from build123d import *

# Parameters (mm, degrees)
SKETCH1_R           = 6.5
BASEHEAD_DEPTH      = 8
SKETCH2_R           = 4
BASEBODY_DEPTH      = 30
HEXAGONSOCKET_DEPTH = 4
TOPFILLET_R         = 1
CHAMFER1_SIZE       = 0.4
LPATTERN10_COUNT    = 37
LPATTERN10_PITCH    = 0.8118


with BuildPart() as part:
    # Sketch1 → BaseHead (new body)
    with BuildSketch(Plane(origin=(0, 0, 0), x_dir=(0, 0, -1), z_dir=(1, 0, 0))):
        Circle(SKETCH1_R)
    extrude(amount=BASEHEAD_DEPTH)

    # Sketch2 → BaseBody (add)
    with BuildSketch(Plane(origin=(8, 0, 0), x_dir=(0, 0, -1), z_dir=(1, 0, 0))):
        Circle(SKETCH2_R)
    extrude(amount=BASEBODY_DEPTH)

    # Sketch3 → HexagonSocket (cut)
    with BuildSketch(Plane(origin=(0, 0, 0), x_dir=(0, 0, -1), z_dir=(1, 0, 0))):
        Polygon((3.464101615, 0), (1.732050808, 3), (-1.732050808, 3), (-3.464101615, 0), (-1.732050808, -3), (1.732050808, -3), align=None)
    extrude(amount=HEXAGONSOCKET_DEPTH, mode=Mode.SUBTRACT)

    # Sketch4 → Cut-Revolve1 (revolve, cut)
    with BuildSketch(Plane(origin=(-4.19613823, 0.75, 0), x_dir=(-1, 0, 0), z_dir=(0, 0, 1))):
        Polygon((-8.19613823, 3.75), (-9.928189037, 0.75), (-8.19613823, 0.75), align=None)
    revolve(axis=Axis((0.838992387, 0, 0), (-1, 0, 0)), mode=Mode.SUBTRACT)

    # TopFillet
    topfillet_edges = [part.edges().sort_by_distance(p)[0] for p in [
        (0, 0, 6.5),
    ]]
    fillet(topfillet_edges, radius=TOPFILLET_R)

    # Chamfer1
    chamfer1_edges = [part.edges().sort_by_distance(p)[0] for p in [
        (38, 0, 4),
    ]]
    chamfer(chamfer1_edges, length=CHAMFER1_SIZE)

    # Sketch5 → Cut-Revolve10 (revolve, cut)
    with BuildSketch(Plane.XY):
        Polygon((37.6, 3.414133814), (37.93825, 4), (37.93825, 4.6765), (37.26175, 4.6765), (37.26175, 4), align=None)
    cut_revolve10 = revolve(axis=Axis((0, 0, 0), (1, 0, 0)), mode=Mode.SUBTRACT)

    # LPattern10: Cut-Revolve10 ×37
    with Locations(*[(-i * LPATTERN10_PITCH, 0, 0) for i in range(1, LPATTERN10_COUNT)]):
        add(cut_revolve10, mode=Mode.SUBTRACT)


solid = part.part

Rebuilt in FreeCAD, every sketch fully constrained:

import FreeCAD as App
import Part
import Sketcher
Q = App.Units.Quantity


def edges_at(feature, points):
    """Names of the edges that pass closest to the given points."""
    edges = feature.Shape.Edges
    near = lambda p: min(range(len(edges)), key=lambda i: edges[i].distToShape(Part.Vertex(*p))[0])
    return sorted({f"Edge{near(p) + 1}" for p in points})


def add_polygon(sketch, points):
    """Adds a closed chain of lines whose ends are joined by coincident constraints."""
    first, n = sketch.GeometryCount, len(points)
    for a, b in zip(points, points[1:] + points[:1]):
        sketch.addGeometry(Part.LineSegment(App.Vector(*a, 0), App.Vector(*b, 0)), False)
    for i in range(n):
        sketch.addConstraint(Sketcher.Constraint("Coincident", first + i, 2, first + (i + 1) % n, 1))

doc = App.newDocument("Part")
body = doc.addObject("PartDesign::Body", "Body")

sketch1 = body.newObject("Sketcher::SketchObject", "Sketch")
sketch1.AttachmentSupport = (doc.getObject("YZ_Plane"), [""])
sketch1.MapMode = "FlatFace"
sketch1.addGeometry(Part.Circle(App.Vector(0, 0, 0), App.Vector(0, 0, 1), 6), False)
sketch1.addConstraint([
    Sketcher.Constraint("Coincident", 0, 3, -1, 1),
    Sketcher.Constraint("Diameter", 0, 13.0),
])
pad1 = body.newObject("PartDesign::Pad", "Pad")
pad1.Profile = sketch1
pad1.Length = 8

sketch2 = body.newObject("Sketcher::SketchObject", "Sketch001")
sketch2.AttachmentSupport = (doc.getObject("YZ_Plane"), [""])
sketch2.MapMode = "FlatFace"
sketch2.AttachmentOffset = App.Placement(App.Vector(0, 0, 8), App.Rotation())
sketch2.addGeometry(Part.Circle(App.Vector(0, 0, 0), App.Vector(0, 0, 1), 4), False)
sketch2.addConstraint([
    Sketcher.Constraint("Coincident", 0, 3, -1, 1),
    Sketcher.Constraint("Diameter", 0, 8.0),
])
pad2 = body.newObject("PartDesign::Pad", "Pad001")
pad2.Profile = sketch2
pad2.Length = 30

sketch3 = body.newObject("Sketcher::SketchObject", "Sketch002")
sketch3.AttachmentSupport = (doc.getObject("YZ_Plane"), [""])
sketch3.MapMode = "FlatFace"
add_polygon(sketch3, [(0, -3.5), (3, -1.7), (3, 1.7), (0, 3.5), (-3, 1.7), (-3, -1.7)])
sketch3.addConstraint([
    Sketcher.Constraint("Vertical", 1),
    Sketcher.Constraint("Vertical", 4),
    Sketcher.Constraint("Symmetric", 0, 2, 3, 2, -1, 1),
    Sketcher.Constraint("Symmetric", 2, 2, 5, 2, -1, 1),
    Sketcher.Constraint("PointOnObject", 2, 2, -2),
    Sketcher.Constraint("Parallel", 2, 5),
    Sketcher.Constraint("Horizontal", 1, 2, 3, 2),
    Sketcher.Constraint("Angle", 0, Q("30 deg")),
    Sketcher.Constraint("DistanceX", -1, 1, 0, 2, 3.0),
    Sketcher.Constraint("DistanceY", 1, 1, 1, 2, 3.464102),
])
pocket1 = body.newObject("PartDesign::Pocket", "Pocket")
pocket1.Profile = sketch3
pocket1.Length = 4
pocket1.Reversed = True

sketch4 = body.newObject("Sketcher::SketchObject", "Sketch003")
sketch4.AttachmentSupport = (doc.getObject("XY_Plane"), [""])
sketch4.MapMode = "FlatFace"
add_polygon(sketch4, [(4, -3), (5.7, 0), (4, 0)])
sketch4.addConstraint([
    Sketcher.Constraint("Horizontal", 1),
    Sketcher.Constraint("Vertical", 2),
    Sketcher.Constraint("PointOnObject", 0, 2, -1),
    Sketcher.Constraint("DistanceY", 2, 2, 2, 1, 3.0),
    Sketcher.Constraint("Angle", 0, Q("60 deg")),
    Sketcher.Constraint("DistanceX", -1, 1, 1, 2, 4.0),
])
groove = body.newObject("PartDesign::Groove", "Groove")
groove.Profile = sketch4
groove.ReferenceAxis = (sketch4, ["H_Axis"])
groove.Angle = 360
doc.recompute()

fillet = body.newObject("PartDesign::Fillet", "Fillet")
fillet.Base = (groove, edges_at(groove, [(0, 0, 6.5)]))
fillet.Radius = 1
doc.recompute()

chamfer = body.newObject("PartDesign::Chamfer", "Chamfer")
chamfer.Base = (fillet, edges_at(fillet, [(38, 0, 4)]))
chamfer.Size = 0.4

sketch5 = body.newObject("Sketcher::SketchObject", "Sketch004")
sketch5.AttachmentSupport = (doc.getObject("XY_Plane"), [""])
sketch5.MapMode = "FlatFace"
add_polygon(sketch5, [(37.6, 3.4), (37.9, 4), (37.9, 4.7), (37.3, 4.7), (37.3, 4)])
sketch5.addConstraint([
    Sketcher.Constraint("Vertical", 1),
    Sketcher.Constraint("Horizontal", 2),
    Sketcher.Constraint("Vertical", 3),
    Sketcher.Constraint("Horizontal", 0, 2, 3, 2),
    Sketcher.Constraint("Equal", 2, 1),
    Sketcher.Constraint("Equal", 0, 4),
    Sketcher.Constraint("Angle", 0, Q("60 deg")),
    Sketcher.Constraint("DistanceY", -1, 1, 0, 2, 4.0),
    Sketcher.Constraint("DistanceX", -1, 1, 4, 2, 37.6),
    Sketcher.Constraint("DistanceX", 2, 2, 2, 1, 0.6765),
])
groove2 = body.newObject("PartDesign::Groove", "Groove001")
groove2.Profile = sketch5
groove2.ReferenceAxis = (sketch5, ["H_Axis"])
groove2.Angle = 360
doc.recompute()

linearpattern = body.newObject("PartDesign::LinearPattern", "LinearPattern")
linearpattern.Originals = [groove2]
linearpattern.Direction = (doc.getObject("X_Axis"), [""])
linearpattern.Mode = "offset"
linearpattern.Offset = 0.8118
linearpattern.Occurrences = 37
linearpattern.Reversed = True
body.Tip = linearpattern

doc.recompute()
